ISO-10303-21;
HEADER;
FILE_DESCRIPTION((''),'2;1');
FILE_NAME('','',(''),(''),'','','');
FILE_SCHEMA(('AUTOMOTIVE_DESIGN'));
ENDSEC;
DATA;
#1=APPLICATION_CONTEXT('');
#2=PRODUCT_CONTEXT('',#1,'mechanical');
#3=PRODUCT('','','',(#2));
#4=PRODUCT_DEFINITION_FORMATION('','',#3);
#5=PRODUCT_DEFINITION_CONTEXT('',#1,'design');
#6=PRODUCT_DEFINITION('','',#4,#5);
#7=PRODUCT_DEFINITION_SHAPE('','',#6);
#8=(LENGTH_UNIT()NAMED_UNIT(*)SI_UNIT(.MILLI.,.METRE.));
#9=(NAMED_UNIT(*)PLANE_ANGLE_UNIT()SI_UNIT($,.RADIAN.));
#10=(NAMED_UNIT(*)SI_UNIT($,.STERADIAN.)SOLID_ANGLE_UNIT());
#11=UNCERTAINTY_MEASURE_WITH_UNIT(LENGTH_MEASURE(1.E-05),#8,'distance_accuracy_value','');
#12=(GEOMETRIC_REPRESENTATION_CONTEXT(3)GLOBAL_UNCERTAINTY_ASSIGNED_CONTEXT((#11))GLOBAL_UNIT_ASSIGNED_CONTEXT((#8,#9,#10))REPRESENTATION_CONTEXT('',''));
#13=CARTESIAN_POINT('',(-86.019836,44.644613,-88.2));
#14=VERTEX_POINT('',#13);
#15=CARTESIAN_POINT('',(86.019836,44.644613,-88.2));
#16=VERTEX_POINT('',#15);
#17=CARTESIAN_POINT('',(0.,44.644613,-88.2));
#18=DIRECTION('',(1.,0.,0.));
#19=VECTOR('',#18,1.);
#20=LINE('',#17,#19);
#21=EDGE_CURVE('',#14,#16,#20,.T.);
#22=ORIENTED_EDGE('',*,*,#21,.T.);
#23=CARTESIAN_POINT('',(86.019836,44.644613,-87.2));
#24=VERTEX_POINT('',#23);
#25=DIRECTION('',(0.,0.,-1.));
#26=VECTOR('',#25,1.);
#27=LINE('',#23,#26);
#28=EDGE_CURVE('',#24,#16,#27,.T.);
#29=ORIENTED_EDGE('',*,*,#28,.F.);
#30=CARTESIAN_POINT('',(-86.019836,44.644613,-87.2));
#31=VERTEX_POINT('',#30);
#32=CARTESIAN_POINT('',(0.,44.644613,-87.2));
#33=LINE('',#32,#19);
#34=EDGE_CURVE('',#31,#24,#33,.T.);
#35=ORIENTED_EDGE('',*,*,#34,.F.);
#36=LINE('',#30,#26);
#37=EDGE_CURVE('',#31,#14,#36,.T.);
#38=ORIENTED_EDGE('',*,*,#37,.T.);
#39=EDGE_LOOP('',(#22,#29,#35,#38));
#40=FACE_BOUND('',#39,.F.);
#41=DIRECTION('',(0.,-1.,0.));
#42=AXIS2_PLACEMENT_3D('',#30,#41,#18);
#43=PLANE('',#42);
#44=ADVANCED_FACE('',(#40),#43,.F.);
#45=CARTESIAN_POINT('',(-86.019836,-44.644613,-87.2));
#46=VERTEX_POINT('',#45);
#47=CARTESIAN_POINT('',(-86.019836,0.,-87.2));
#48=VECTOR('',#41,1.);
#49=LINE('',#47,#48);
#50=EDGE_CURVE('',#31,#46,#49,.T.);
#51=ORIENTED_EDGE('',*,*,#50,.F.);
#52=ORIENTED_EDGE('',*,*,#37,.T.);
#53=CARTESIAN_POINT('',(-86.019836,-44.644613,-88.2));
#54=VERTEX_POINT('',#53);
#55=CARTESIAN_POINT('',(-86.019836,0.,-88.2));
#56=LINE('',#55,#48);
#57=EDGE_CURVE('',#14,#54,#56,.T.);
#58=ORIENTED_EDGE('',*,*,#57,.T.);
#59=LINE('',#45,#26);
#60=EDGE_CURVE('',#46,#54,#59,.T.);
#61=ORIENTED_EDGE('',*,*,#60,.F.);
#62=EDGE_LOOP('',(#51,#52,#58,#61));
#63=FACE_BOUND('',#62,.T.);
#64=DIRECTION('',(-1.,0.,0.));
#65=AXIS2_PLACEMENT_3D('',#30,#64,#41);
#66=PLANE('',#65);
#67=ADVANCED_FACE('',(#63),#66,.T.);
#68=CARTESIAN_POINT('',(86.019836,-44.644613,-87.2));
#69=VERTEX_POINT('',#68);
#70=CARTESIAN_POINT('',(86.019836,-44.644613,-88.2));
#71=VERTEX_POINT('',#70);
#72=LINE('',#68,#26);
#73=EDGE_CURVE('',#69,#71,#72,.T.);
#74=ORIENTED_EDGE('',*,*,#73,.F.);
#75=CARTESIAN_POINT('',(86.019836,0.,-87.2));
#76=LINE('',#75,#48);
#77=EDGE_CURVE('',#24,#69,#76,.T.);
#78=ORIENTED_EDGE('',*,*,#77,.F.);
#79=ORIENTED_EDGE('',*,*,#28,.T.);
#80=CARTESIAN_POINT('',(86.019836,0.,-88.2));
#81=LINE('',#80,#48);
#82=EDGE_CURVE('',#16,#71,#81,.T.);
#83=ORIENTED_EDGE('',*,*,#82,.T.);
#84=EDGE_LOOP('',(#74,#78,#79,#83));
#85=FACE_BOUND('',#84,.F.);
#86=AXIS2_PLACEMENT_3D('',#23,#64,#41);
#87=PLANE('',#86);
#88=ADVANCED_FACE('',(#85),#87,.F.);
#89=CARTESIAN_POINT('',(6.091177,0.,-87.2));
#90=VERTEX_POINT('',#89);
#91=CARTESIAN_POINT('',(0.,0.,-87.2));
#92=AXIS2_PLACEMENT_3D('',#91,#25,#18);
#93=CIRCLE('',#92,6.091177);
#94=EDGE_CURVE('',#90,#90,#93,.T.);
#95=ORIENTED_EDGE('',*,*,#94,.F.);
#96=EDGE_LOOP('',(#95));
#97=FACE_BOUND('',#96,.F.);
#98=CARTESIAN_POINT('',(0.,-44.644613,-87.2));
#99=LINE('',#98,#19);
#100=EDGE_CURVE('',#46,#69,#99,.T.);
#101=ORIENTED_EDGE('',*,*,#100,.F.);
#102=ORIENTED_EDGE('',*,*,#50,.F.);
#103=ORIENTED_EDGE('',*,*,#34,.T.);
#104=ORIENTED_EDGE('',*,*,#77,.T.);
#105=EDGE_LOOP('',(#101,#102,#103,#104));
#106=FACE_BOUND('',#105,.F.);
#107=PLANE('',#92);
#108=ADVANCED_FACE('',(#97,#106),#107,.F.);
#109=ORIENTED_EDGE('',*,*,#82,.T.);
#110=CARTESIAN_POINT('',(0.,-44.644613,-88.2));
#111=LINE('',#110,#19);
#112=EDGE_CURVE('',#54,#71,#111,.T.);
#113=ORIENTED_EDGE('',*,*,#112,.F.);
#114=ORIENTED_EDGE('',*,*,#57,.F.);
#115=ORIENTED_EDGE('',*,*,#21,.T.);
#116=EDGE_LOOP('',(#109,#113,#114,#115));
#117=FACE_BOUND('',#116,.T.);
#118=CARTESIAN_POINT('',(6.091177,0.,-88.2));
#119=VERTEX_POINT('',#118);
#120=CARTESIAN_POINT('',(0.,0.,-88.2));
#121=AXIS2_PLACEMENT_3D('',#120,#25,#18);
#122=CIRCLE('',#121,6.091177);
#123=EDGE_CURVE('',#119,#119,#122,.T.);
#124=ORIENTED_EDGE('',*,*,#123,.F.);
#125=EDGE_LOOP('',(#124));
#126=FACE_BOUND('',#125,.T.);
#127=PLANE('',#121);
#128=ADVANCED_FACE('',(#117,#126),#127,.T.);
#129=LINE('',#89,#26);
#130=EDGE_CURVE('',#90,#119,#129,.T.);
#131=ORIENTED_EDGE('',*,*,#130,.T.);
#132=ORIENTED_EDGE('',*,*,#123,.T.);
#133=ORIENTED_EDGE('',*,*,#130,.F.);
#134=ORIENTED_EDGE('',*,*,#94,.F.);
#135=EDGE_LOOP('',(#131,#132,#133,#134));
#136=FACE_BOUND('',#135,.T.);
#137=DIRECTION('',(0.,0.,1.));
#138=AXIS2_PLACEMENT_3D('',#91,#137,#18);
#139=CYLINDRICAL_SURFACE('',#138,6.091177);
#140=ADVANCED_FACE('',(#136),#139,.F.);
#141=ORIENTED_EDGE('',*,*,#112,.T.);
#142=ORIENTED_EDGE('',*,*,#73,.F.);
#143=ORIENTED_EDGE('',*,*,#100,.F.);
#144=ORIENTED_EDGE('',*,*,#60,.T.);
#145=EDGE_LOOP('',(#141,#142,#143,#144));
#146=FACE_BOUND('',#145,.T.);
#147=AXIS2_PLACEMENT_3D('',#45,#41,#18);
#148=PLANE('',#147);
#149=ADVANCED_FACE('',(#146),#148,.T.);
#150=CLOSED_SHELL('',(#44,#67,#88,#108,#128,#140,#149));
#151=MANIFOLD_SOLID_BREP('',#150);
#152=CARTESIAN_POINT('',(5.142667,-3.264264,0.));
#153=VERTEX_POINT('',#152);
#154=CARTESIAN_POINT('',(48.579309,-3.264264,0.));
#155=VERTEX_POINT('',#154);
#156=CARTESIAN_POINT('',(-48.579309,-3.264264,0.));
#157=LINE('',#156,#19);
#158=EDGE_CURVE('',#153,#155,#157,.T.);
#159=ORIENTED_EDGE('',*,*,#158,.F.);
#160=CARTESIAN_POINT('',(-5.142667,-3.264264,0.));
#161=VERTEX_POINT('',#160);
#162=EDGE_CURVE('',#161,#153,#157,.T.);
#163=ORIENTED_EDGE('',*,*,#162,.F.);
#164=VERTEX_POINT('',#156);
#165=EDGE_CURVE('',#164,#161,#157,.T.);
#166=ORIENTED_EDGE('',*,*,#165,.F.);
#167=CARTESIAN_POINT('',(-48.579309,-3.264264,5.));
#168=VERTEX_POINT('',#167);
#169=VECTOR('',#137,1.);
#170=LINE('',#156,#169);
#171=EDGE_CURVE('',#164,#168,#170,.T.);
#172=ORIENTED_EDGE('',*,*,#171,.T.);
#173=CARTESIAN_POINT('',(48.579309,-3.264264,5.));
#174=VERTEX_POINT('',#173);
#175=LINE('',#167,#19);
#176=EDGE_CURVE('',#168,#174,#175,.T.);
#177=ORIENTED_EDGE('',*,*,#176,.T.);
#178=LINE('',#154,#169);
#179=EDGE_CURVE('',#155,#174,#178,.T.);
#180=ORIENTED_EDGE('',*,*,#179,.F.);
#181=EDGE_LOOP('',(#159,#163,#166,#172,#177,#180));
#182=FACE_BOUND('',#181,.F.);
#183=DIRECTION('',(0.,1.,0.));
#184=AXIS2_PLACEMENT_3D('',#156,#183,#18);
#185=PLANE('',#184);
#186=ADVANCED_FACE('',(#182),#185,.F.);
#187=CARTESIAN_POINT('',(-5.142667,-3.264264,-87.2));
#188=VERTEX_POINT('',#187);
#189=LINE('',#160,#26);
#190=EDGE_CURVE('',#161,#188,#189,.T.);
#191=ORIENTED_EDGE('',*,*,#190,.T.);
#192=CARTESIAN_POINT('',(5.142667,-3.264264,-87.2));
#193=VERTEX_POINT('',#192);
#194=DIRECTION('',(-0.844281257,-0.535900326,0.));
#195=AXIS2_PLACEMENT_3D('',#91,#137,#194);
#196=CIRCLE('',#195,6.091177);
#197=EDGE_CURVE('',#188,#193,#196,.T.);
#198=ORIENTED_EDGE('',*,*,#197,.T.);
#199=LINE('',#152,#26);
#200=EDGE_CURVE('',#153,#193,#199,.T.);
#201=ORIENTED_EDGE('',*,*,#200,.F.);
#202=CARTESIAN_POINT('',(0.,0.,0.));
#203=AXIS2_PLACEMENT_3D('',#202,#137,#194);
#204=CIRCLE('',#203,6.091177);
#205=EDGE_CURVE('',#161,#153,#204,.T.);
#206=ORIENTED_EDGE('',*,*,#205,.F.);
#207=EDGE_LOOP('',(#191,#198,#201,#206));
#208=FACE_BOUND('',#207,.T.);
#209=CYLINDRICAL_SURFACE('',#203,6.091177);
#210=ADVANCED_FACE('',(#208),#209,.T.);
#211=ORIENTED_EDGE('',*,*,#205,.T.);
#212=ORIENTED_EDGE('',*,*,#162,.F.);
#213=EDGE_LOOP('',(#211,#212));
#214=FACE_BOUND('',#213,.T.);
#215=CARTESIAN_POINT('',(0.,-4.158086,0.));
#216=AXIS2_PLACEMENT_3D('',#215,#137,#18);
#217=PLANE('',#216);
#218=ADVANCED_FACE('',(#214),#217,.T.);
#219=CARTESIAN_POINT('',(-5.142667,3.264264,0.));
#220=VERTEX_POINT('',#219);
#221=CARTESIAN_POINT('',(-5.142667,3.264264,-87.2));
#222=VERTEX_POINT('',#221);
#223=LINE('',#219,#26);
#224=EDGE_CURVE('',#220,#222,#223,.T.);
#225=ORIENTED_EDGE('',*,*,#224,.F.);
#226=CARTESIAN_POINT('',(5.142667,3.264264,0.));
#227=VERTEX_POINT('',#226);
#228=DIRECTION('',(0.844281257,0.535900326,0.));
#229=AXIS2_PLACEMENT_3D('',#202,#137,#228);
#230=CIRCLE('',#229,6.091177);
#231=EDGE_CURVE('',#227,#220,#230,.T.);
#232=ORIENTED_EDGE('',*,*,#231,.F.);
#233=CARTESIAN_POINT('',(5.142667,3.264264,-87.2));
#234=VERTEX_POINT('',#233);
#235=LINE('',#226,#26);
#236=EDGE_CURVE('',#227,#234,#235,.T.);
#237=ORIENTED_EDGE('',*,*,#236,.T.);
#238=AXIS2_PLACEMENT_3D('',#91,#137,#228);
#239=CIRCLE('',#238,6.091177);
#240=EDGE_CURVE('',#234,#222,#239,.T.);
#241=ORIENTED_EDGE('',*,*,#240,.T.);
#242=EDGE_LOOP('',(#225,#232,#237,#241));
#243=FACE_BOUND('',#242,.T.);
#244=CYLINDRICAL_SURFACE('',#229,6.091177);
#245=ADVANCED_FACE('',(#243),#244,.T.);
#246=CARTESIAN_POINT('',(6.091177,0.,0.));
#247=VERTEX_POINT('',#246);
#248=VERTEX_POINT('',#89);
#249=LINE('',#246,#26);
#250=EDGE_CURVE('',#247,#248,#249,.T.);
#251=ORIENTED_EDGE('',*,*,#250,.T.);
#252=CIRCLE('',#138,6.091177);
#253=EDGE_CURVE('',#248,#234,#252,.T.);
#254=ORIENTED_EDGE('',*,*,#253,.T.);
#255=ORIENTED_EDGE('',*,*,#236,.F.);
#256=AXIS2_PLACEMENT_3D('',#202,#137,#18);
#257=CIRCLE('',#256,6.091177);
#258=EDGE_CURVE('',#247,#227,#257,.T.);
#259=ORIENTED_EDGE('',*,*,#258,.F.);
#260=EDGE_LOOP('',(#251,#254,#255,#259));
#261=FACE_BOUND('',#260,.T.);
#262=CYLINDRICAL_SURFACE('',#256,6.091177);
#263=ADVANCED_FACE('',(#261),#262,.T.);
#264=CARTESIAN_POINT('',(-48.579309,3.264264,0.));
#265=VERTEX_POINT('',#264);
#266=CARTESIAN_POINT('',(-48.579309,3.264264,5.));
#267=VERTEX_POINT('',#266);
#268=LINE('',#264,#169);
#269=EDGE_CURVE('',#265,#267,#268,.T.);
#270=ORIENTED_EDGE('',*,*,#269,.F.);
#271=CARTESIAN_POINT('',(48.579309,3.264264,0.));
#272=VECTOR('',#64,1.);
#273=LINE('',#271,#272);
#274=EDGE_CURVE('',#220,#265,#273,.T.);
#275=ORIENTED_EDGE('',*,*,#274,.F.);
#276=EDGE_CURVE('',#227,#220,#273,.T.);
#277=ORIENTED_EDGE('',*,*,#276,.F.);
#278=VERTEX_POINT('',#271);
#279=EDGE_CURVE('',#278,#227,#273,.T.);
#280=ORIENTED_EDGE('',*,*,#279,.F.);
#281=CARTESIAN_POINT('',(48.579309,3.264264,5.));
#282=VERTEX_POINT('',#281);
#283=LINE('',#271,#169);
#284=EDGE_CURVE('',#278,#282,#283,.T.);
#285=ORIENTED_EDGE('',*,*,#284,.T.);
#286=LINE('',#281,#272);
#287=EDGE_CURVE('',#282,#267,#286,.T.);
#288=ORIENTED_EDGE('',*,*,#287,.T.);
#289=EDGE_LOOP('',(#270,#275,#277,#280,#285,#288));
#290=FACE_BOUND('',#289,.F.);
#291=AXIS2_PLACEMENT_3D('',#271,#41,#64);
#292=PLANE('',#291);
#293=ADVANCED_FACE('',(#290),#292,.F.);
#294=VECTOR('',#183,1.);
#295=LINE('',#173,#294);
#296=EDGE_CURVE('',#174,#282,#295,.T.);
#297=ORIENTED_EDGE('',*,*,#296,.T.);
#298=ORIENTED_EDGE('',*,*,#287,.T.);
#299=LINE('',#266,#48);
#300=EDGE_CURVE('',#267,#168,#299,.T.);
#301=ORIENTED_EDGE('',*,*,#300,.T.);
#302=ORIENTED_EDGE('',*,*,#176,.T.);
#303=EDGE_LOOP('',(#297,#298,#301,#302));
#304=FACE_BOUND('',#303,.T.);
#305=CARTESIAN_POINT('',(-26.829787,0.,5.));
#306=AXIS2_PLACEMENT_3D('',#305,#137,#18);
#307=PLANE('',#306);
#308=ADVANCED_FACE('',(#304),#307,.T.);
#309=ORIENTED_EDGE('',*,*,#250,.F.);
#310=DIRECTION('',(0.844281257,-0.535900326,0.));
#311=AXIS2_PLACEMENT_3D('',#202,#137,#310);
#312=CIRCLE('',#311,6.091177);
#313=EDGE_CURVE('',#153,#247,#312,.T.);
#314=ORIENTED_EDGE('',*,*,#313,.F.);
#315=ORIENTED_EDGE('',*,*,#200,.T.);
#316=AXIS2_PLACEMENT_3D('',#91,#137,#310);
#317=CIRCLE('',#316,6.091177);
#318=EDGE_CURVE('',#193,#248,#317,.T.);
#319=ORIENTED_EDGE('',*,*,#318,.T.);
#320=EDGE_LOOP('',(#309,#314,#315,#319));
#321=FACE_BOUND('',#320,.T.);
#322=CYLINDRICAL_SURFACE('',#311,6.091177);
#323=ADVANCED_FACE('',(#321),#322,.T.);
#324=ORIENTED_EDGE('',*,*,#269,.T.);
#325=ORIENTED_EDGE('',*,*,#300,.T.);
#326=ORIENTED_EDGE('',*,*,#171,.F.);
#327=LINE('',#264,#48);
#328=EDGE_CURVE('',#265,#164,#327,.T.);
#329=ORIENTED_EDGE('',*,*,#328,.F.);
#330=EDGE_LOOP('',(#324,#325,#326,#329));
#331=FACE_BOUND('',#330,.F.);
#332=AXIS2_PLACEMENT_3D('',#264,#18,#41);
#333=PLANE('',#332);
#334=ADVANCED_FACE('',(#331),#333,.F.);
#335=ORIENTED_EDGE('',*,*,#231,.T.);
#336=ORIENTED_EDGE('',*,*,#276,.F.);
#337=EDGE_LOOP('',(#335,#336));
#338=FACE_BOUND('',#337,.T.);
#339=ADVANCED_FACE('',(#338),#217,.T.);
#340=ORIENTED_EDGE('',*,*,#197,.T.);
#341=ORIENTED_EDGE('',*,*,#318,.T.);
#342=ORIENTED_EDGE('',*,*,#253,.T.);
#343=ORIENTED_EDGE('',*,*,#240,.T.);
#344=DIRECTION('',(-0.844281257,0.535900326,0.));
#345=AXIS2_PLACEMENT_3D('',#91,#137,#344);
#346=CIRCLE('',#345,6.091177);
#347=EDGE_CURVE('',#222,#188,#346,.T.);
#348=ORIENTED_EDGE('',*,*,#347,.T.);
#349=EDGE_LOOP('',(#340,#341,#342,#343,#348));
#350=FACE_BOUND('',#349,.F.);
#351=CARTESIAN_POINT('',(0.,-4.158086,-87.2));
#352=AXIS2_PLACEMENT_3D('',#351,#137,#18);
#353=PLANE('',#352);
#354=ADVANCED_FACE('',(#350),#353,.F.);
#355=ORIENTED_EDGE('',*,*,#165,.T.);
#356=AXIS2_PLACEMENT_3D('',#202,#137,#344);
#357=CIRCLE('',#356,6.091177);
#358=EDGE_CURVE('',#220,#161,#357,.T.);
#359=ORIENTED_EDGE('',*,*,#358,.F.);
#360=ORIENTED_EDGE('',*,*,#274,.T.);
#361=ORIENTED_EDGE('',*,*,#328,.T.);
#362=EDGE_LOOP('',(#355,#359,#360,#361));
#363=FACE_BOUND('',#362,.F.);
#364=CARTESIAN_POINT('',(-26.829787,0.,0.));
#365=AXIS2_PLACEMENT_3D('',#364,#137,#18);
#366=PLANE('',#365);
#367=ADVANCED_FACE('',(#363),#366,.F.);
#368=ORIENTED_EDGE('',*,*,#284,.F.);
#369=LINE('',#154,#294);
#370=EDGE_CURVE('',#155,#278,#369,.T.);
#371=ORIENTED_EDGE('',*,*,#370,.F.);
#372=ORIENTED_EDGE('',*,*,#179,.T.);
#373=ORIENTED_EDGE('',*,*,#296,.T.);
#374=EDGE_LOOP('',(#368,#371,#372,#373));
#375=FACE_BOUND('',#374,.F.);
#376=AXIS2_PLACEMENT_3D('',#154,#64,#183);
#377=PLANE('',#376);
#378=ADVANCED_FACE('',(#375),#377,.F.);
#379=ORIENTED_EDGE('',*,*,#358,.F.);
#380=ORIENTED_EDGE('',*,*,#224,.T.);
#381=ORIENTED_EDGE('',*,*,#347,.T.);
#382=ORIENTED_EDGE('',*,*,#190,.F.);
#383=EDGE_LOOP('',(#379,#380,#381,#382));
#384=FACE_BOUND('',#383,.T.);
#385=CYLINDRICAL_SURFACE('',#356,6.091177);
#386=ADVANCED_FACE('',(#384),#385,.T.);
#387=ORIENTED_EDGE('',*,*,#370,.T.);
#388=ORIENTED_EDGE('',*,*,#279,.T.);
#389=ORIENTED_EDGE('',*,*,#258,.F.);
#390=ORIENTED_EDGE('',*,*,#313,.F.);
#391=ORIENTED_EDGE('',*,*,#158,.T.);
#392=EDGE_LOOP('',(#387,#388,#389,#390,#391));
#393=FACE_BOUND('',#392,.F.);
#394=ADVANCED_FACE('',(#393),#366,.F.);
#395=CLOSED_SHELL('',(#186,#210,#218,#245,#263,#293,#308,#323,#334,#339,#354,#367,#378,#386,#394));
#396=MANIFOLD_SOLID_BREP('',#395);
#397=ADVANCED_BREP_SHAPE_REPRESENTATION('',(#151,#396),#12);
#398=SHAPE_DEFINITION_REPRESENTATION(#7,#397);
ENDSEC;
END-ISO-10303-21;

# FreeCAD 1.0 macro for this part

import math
import FreeCAD as App
import Part
import Sketcher
Q = App.Units.Quantity

doc = App.newDocument("Part")
params = doc.addObject("Spreadsheet::Sheet", "Params")
for row, (alias, value) in enumerate([
    ("pad1_length", "5 mm"),
    ("pad2_length", "87.2 mm"),
    ("pad3_length", "1 mm"),
], start=1):
    params.set(f"A{row}", alias)
    params.set(f"B{row}", "=" + value)
    params.setAlias(f"B{row}", alias)

body = doc.addObject("PartDesign::Body", "Body")

# Sketch on XY plane
sketch1 = doc.addObject("Sketcher::SketchObject", "Sketch")
body.addObject(sketch1)
sketch1.AttachmentSupport = (doc.XY_Plane, [""])
sketch1.MapMode = "FlatFace"
sketch1.addGeometry(Part.LineSegment(App.Vector(-49, -3, 0), App.Vector(49, -3, 0)), False)
sketch1.addGeometry(Part.LineSegment(App.Vector(49, -3, 0), App.Vector(49, 3, 0)), False)
sketch1.addGeometry(Part.LineSegment(App.Vector(49, 3, 0), App.Vector(-49, 3, 0)), False)
sketch1.addGeometry(Part.LineSegment(App.Vector(-49, 3, 0), App.Vector(-49, -3, 0)), False)
sketch1.addConstraint(Sketcher.Constraint("Coincident", 0, 2, 1, 1))
sketch1.addConstraint(Sketcher.Constraint("Coincident", 1, 2, 2, 1))
sketch1.addConstraint(Sketcher.Constraint("Coincident", 2, 2, 3, 1))
sketch1.addConstraint(Sketcher.Constraint("Coincident", 3, 2, 0, 1))
sketch1.addConstraint(Sketcher.Constraint("Horizontal", 0))
sketch1.addConstraint(Sketcher.Constraint("Vertical", 1))
sketch1.addConstraint(Sketcher.Constraint("Horizontal", 2))
sketch1.addConstraint(Sketcher.Constraint("Vertical", 3))
sketch1.addConstraint(Sketcher.Constraint("Symmetric", 0, 2, 2, 2, -1, 1))
sketch1.addConstraint(Sketcher.Constraint("DistanceX", 0, 1, 0, 2, Q("97.158618 mm")))
sketch1.addConstraint(Sketcher.Constraint("DistanceY", 1, 1, 1, 2, Q("6.528528 mm")))
pad1 = doc.addObject("PartDesign::Pad", "Pad")
body.addObject(pad1)
pad1.Profile = sketch1
pad1.setExpression("Length", "Params.pad1_length")

# Sketch on XY plane
sketch2 = doc.addObject("Sketcher::SketchObject", "Sketch001")
body.addObject(sketch2)
sketch2.AttachmentSupport = (doc.XY_Plane, [""])
sketch2.MapMode = "FlatFace"
sketch2.addGeometry(Part.ArcOfCircle(Part.Circle(App.Vector(0, 0, 0), App.Vector(0, 0, 1), 6.1), math.radians(-148), math.radians(-32)), False)
sketch2.addGeometry(Part.ArcOfCircle(Part.Circle(App.Vector(0, 0, 0), App.Vector(0, 0, 1), 6.1), math.radians(-32), math.radians(0)), False)
sketch2.addGeometry(Part.ArcOfCircle(Part.Circle(App.Vector(0, 0, 0), App.Vector(0, 0, 1), 6.1), math.radians(0), math.radians(32)), False)
sketch2.addGeometry(Part.ArcOfCircle(Part.Circle(App.Vector(0, 0, 0), App.Vector(0, 0, 1), 6.1), math.radians(32), math.radians(148)), False)
sketch2.addGeometry(Part.ArcOfCircle(Part.Circle(App.Vector(0, 0, 0), App.Vector(0, 0, 1), 6.1), math.radians(148), math.radians(212)), False)
sketch2.addConstraint(Sketcher.Constraint("Tangent", 0, 2, 1, 1))
sketch2.addConstraint(Sketcher.Constraint("Tangent", 1, 2, 2, 1))
sketch2.addConstraint(Sketcher.Constraint("Tangent", 2, 2, 3, 1))
sketch2.addConstraint(Sketcher.Constraint("Tangent", 3, 2, 4, 1))
sketch2.addConstraint(Sketcher.Constraint("Tangent", 4, 2, 0, 1))
sketch2.addConstraint(Sketcher.Constraint("Coincident", 0, 3, -1, 1))
sketch2.addConstraint(Sketcher.Constraint("Coincident", 2, 3, -1, 1))
sketch2.addConstraint(Sketcher.Constraint("PointOnObject", 1, 2, -1))
sketch2.addConstraint(Sketcher.Constraint("Horizontal", 2, 2, 3, 2))
sketch2.addConstraint(Sketcher.Constraint("Horizontal", 0, 2, 4, 2))
sketch2.addConstraint(Sketcher.Constraint("Vertical", 0, 2, 2, 2))
sketch2.addConstraint(Sketcher.Constraint("Radius", 0, Q("6.091177 mm")))
sketch2.addConstraint(Sketcher.Constraint("DistanceX", 0, 2, 1, 2, Q("0.94851 mm")))
pad2 = doc.addObject("PartDesign::Pad", "Pad001")
body.addObject(pad2)
pad2.Profile = sketch2
pad2.setExpression("Length", "Params.pad2_length")
pad2.Reversed = True
body2 = doc.addObject("PartDesign::Body", "Body001")

# Sketch on XY plane
sketch3 = doc.addObject("Sketcher::SketchObject", "Sketch002")
body2.addObject(sketch3)
sketch3.AttachmentSupport = (doc.getObject("XY_Plane001"), [""])
sketch3.MapMode = "FlatFace"
sketch3.AttachmentOffset = App.Placement(App.Vector(0, 0, -87.2), App.Rotation())
sketch3.addGeometry(Part.LineSegment(App.Vector(-86, -45, 0), App.Vector(-86, 45, 0)), False)
sketch3.addGeometry(Part.LineSegment(App.Vector(-86, 45, 0), App.Vector(86, 45, 0)), False)
sketch3.addGeometry(Part.LineSegment(App.Vector(86, 45, 0), App.Vector(86, -45, 0)), False)
sketch3.addGeometry(Part.LineSegment(App.Vector(86, -45, 0), App.Vector(-86, -45, 0)), False)
sketch3.addGeometry(Part.Circle(App.Vector(0, 0, 0), App.Vector(0, 0, 1), 6), False)
sketch3.addConstraint(Sketcher.Constraint("Coincident", 0, 2, 1, 1))
sketch3.addConstraint(Sketcher.Constraint("Coincident", 1, 2, 2, 1))
sketch3.addConstraint(Sketcher.Constraint("Coincident", 2, 2, 3, 1))
sketch3.addConstraint(Sketcher.Constraint("Coincident", 3, 2, 0, 1))
sketch3.addConstraint(Sketcher.Constraint("Vertical", 0))
sketch3.addConstraint(Sketcher.Constraint("Horizontal", 1))
sketch3.addConstraint(Sketcher.Constraint("Vertical", 2))
sketch3.addConstraint(Sketcher.Constraint("Horizontal", 3))
sketch3.addConstraint(Sketcher.Constraint("Coincident", 4, 3, -1, 1))
sketch3.addConstraint(Sketcher.Constraint("Symmetric", 0, 2, 2, 2, -1, 1))
sketch3.addConstraint(Sketcher.Constraint("Diameter", 4, Q("12.182355 mm")))
sketch3.addConstraint(Sketcher.Constraint("DistanceX", 1, 1, 1, 2, Q("172.039673 mm")))
sketch3.addConstraint(Sketcher.Constraint("DistanceY", 0, 1, 0, 2, Q("89.289226 mm")))
pad3 = doc.addObject("PartDesign::Pad", "Pad002")
body2.addObject(pad3)
pad3.Profile = sketch3
pad3.setExpression("Length", "Params.pad3_length")
pad3.Reversed = True

doc.recompute()
